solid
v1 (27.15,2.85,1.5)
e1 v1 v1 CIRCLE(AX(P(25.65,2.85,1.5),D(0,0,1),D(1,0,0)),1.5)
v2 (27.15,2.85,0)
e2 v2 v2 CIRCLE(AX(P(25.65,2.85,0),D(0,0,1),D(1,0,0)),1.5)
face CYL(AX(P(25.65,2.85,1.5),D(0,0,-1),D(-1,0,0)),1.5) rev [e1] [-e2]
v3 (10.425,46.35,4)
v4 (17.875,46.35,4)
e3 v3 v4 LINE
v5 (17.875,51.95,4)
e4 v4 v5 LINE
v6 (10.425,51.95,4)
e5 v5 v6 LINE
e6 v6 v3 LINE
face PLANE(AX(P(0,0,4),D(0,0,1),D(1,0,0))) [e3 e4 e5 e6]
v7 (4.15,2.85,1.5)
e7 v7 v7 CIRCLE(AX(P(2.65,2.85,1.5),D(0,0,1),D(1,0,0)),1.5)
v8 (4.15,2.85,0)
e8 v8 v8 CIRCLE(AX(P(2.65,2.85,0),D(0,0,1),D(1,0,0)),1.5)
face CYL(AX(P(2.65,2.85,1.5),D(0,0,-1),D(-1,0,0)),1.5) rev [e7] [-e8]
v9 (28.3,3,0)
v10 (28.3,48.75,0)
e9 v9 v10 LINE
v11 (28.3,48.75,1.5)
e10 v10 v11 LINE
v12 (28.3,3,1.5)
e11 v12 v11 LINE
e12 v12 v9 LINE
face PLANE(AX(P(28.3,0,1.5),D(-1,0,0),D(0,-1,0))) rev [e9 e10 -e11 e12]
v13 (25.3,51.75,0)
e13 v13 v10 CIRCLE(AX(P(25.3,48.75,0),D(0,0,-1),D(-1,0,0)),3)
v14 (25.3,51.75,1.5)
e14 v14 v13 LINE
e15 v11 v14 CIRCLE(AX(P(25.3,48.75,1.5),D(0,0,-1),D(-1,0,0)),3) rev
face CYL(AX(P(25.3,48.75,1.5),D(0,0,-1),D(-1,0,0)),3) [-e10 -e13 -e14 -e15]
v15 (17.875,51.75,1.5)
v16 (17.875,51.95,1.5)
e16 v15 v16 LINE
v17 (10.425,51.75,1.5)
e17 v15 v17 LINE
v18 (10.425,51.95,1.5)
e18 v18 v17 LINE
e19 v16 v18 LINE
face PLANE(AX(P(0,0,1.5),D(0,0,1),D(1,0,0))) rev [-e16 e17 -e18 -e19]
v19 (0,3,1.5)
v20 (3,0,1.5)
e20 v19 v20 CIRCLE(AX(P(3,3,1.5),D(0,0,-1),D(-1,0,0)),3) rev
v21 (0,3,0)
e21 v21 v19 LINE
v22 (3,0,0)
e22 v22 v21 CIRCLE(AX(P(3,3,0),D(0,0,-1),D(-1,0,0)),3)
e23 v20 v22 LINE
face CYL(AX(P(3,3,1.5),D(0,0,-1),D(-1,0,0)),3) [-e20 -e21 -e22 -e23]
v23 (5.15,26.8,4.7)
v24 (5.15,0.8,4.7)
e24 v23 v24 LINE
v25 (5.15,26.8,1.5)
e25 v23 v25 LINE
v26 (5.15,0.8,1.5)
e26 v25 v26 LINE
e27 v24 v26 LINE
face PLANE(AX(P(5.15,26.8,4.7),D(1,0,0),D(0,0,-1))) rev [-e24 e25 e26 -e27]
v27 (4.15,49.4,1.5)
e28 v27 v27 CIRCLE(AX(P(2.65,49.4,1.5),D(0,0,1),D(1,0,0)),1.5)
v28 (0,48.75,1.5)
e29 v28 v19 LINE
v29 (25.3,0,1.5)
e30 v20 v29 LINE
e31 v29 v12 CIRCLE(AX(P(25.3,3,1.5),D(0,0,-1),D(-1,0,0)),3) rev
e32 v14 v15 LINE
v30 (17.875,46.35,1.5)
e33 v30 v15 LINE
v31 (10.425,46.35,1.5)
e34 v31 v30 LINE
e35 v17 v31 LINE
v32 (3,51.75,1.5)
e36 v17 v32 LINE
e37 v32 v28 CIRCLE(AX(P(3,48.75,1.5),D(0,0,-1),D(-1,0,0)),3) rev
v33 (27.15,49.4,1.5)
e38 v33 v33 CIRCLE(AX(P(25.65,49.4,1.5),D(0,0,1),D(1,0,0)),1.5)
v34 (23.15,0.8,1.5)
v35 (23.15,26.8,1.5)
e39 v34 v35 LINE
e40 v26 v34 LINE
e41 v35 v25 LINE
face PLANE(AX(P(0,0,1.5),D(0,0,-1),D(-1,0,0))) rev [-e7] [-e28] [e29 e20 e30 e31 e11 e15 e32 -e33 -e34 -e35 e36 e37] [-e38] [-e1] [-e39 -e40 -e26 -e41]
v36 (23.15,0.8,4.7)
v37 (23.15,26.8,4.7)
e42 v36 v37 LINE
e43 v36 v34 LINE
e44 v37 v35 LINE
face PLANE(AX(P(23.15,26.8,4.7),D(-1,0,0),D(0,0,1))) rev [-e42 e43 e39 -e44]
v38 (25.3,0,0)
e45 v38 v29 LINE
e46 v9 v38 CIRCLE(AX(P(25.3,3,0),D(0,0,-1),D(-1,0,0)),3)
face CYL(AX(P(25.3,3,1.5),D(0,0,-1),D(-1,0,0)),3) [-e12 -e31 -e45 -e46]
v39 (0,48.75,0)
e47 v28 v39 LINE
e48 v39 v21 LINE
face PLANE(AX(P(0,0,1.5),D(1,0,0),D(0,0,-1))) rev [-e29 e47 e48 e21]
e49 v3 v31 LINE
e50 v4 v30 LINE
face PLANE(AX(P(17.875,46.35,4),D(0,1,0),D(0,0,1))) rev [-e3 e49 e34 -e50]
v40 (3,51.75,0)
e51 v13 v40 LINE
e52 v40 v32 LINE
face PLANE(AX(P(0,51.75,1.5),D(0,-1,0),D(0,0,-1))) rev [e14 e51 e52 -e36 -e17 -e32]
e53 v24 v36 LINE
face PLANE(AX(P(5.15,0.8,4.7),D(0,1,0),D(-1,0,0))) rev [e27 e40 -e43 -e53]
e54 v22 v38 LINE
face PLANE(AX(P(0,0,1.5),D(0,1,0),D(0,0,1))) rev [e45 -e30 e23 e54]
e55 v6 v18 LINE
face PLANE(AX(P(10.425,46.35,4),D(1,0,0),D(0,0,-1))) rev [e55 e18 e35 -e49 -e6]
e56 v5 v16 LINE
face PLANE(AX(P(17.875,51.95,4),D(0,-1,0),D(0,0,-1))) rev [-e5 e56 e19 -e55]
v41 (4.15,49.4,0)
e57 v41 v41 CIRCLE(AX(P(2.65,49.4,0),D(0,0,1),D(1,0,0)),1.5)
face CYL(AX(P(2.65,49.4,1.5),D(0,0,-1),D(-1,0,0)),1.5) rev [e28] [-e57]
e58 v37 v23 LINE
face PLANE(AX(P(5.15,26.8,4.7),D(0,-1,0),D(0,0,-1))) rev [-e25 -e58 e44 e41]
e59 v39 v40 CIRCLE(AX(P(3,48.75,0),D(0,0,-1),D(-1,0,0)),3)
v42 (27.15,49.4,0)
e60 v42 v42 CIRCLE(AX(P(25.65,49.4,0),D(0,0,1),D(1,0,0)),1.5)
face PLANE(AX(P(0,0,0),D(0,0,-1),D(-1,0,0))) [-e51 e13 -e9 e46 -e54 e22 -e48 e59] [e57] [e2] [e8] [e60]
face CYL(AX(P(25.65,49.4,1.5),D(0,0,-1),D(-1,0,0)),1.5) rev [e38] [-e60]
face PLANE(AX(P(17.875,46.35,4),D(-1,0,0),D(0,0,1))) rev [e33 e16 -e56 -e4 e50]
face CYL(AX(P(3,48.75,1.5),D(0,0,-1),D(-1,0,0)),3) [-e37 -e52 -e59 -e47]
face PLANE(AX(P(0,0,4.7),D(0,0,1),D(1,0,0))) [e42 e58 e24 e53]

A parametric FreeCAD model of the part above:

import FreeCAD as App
import Part
import Sketcher

V = App.Vector
Q = App.Units.Quantity


def edges_at(feature, points):
    """Names of the edges that pass closest to the given points."""
    edges = feature.Shape.Edges
    near = lambda p: min(range(len(edges)), key=lambda i: edges[i].distToShape(Part.Vertex(*p))[0])
    return sorted({f"Edge{near(p) + 1}" for p in points})

doc = App.newDocument("Part")
body = doc.addObject("PartDesign::Body", "Body")

sketch1 = body.newObject("Sketcher::SketchObject", "Sketch")
sketch1.AttachmentSupport = (doc.getObject("XY_Plane"), [""])
sketch1.MapMode = "FlatFace"
sketch1.addGeometry([
    Part.LineSegment(V(0, 51.75, 0), V(0, 0, 0)),
    Part.LineSegment(V(0, 0, 0), V(28.3, 0, 0)),
    Part.LineSegment(V(28.3, 0, 0), V(28.3, 51.75, 0)),
    Part.LineSegment(V(28.3, 51.75, 0), V(0, 51.75, 0)),
    Part.Circle(V(2.65, 2.85, 0), V(0, 0, 1), 1.5),
    Part.Circle(V(25.65, 2.85, 0), V(0, 0, 1), 1.5),
    Part.Circle(V(2.65, 49.4, 0), V(0, 0, 1), 1.5),
    Part.Circle(V(25.65, 49.4, 0), V(0, 0, 1), 1.5),
], False)
sketch1.addConstraint([
    Sketcher.Constraint("Coincident", 0, 2, 1, 1),
    Sketcher.Constraint("Coincident", 1, 2, 2, 1),
    Sketcher.Constraint("Coincident", 2, 2, 3, 1),
    Sketcher.Constraint("Coincident", 3, 2, 0, 1),
    Sketcher.Constraint("Vertical", 0),
    Sketcher.Constraint("Horizontal", 1),
    Sketcher.Constraint("Vertical", 2),
    Sketcher.Constraint("Horizontal", 3),
    Sketcher.Constraint("Coincident", 0, 2, -1, 1),
    Sketcher.Constraint("Equal", 4, 5),
    Sketcher.Constraint("Equal", 5, 6),
    Sketcher.Constraint("Equal", 6, 7),
    Sketcher.Constraint("Horizontal", 4, 3, 5, 3),
    Sketcher.Constraint("Horizontal", 6, 3, 7, 3),
    Sketcher.Constraint("Vertical", 4, 3, 6, 3),
    Sketcher.Constraint("Vertical", 5, 3, 7, 3),
    Sketcher.Constraint("Diameter", 4, Q("3 mm")),
    Sketcher.Constraint("DistanceX", 1, 1, 1, 2, Q("28.3 mm")),
    Sketcher.Constraint("DistanceX", 4, 3, 5, 3, Q("23 mm")),
    Sketcher.Constraint("DistanceY", 0, 2, 0, 1, Q("51.75 mm")),
    Sketcher.Constraint("DistanceY", -1, 1, 6, 3, Q("49.4 mm")),
    Sketcher.Constraint("DistanceY", 5, 3, 2, 2, Q("48.9 mm")),
    Sketcher.Constraint("DistanceX", -1, 1, 4, 3, Q("2.65 mm")),
])
pad1 = body.newObject("PartDesign::Pad", "Pad")
pad1.Profile = sketch1
pad1.Length = 1.5
doc.recompute()

fillet = body.newObject("PartDesign::Fillet", "Fillet")
fillet.Base = (pad1, edges_at(pad1, [
    (0, 51.75, 0.75),
    (28.3, 51.75, 0.75),
    (28.3, 0, 0.75),
    (0, 0, 0.75),
]))
fillet.Radius = 3

sketch2 = body.newObject("Sketcher::SketchObject", "Sketch001")
sketch2.AttachmentSupport = (doc.getObject("XY_Plane"), [""])
sketch2.MapMode = "FlatFace"
sketch2.AttachmentOffset = App.Placement(V(0, 0, 1.5), App.Rotation())
sketch2.addGeometry([
    Part.LineSegment(V(5.15, 26.8, 0), V(5.15, 0.8, 0)),
    Part.LineSegment(V(5.15, 0.8, 0), V(23.15, 0.8, 0)),
    Part.LineSegment(V(23.15, 0.8, 0), V(23.15, 26.8, 0)),
    Part.LineSegment(V(23.15, 26.8, 0), V(5.15, 26.8, 0)),
], False)
sketch2.addConstraint([
    Sketcher.Constraint("Coincident", 0, 2, 1, 1),
    Sketcher.Constraint("Coincident", 1, 2, 2, 1),
    Sketcher.Constraint("Coincident", 2, 2, 3, 1),
    Sketcher.Constraint("Coincident", 3, 2, 0, 1),
    Sketcher.Constraint("Vertical", 0),
    Sketcher.Constraint("Horizontal", 1),
    Sketcher.Constraint("Vertical", 2),
    Sketcher.Constraint("Horizontal", 3),
    Sketcher.Constraint("DistanceX", 1, 1, 1, 2, Q("18 mm")),
    Sketcher.Constraint("DistanceY", 0, 2, 0, 1, Q("26 mm")),
    Sketcher.Constraint("DistanceY", -1, 1, 0, 2, Q("0.8 mm")),
    Sketcher.Constraint("DistanceX", -1, 1, 0, 2, Q("5.15 mm")),
])
pad2 = body.newObject("PartDesign::Pad", "Pad001")
pad2.Profile = sketch2
pad2.Length = 3.2

sketch3 = body.newObject("Sketcher::SketchObject", "Sketch002")
sketch3.AttachmentSupport = (doc.getObject("XY_Plane"), [""])
sketch3.MapMode = "FlatFace"
sketch3.AttachmentOffset = App.Placement(V(0, 0, 1.5), App.Rotation())
sketch3.addGeometry([
    Part.LineSegment(V(10.425, 51.95, 0), V(10.425, 46.35, 0)),
    Part.LineSegment(V(10.425, 46.35, 0), V(17.875, 46.35, 0)),
    Part.LineSegment(V(17.875, 46.35, 0), V(17.875, 51.95, 0)),
    Part.LineSegment(V(17.875, 51.95, 0), V(10.425, 51.95, 0)),
], False)
sketch3.addConstraint([
    Sketcher.Constraint("Coincident", 0, 2, 1, 1),
    Sketcher.Constraint("Coincident", 1, 2, 2, 1),
    Sketcher.Constraint("Coincident", 2, 2, 3, 1),
    Sketcher.Constraint("Coincident", 3, 2, 0, 1),
    Sketcher.Constraint("Vertical", 0),
    Sketcher.Constraint("Horizontal", 1),
    Sketcher.Constraint("Vertical", 2),
    Sketcher.Constraint("Horizontal", 3),
    Sketcher.Constraint("DistanceY", 0, 2, 0, 1, Q("5.6 mm")),
    Sketcher.Constraint("DistanceX", 1, 1, 1, 2, Q("7.45 mm")),
    Sketcher.Constraint("DistanceY", -1, 1, 0, 2, Q("46.35 mm")),
    Sketcher.Constraint("DistanceX", -1, 1, 0, 2, Q("10.425 mm")),
])
pad3 = body.newObject("PartDesign::Pad", "Pad002")
pad3.Profile = sketch3
pad3.Length = 2.5

doc.recompute()
